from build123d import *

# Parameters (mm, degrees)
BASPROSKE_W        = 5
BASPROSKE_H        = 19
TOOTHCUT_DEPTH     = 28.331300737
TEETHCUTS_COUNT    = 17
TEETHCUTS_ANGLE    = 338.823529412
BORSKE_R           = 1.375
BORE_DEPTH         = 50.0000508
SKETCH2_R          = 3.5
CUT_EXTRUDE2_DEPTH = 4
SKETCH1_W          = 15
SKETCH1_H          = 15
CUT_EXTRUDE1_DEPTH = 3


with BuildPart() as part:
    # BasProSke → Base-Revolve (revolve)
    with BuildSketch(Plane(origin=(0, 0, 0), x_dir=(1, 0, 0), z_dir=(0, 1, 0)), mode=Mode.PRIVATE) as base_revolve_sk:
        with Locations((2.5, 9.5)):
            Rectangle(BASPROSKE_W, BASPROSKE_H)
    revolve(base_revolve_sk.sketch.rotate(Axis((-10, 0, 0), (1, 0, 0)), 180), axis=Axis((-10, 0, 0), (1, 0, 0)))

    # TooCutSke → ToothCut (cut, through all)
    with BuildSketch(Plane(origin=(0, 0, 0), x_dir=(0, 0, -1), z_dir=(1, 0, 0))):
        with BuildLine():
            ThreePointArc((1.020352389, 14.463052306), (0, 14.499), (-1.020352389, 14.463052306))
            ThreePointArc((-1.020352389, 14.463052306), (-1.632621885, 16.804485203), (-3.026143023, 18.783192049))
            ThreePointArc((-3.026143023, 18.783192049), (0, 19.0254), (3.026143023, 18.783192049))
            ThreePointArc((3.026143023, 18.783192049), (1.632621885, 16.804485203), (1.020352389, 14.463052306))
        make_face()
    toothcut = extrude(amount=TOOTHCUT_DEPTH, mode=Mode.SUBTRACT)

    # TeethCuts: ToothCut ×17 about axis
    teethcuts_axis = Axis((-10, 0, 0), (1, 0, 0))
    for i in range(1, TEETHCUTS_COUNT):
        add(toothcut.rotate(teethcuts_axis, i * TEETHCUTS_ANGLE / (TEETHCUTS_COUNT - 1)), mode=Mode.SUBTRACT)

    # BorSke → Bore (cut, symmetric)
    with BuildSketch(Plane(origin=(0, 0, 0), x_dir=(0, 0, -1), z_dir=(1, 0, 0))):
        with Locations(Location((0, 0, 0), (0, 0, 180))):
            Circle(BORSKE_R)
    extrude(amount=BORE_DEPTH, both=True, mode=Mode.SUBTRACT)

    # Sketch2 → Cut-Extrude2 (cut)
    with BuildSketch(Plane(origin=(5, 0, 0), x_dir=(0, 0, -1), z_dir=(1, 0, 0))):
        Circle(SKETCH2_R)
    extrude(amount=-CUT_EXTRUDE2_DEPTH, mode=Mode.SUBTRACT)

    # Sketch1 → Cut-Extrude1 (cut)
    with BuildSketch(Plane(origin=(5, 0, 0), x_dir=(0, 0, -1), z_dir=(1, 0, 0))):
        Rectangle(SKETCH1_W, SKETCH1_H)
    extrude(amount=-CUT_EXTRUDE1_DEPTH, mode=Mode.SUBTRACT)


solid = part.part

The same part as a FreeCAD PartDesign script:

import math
import FreeCAD as App
import Part
import Sketcher
Q = App.Units.Quantity


def add_polygon(sketch, points):
    """Adds a closed chain of lines whose ends are joined by coincident constraints."""
    first, n = sketch.GeometryCount, len(points)
    for a, b in zip(points, points[1:] + points[:1]):
        sketch.addGeometry(Part.LineSegment(App.Vector(*a, 0), App.Vector(*b, 0)), False)
    for i in range(n):
        sketch.addConstraint(Sketcher.Constraint("Coincident", first + i, 2, first + (i + 1) % n, 1))

doc = App.newDocument("Part")
params = doc.addObject("Spreadsheet::Sheet", "Params")
for row, (alias, value) in enumerate([
    ("sketch1_width", "5 mm"),
    ("sketch1_height", "19 mm"),
    ("revolution_angle", "360 deg"),
    ("sketch2_radius", "6.8 mm"),
    ("sketch3_diameter", "2.75 mm"),
    ("pocket2_length", "100.000102 mm"),
    ("sketch4_diameter", "7 mm"),
    ("pocket3_length", "4 mm"),
    ("sketch5_width", "15 mm"),
    ("pocket4_length", "3 mm"),
], start=1):
    params.set(f"A{row}", alias)
    params.set(f"B{row}", "=" + value)
    params.setAlias(f"B{row}", alias)

body = doc.addObject("PartDesign::Body", "Body")

sketch1 = body.newObject("Sketcher::SketchObject", "Sketch")
sketch1.AttachmentSupport = (doc.getObject("XZ_Plane"), [""])
sketch1.MapMode = "FlatFace"
add_polygon(sketch1, [(0, -19), (0, 0), (5, 0), (5, -19)])
sketch1.addConstraint(Sketcher.Constraint("Vertical", 0))
sketch1.addConstraint(Sketcher.Constraint("Horizontal", 1))
sketch1.addConstraint(Sketcher.Constraint("Vertical", 2))
sketch1.addConstraint(Sketcher.Constraint("Horizontal", 3))
sketch1.addConstraint(Sketcher.Constraint("Coincident", 0, 2, -1, 1))
sketch1.addConstraint(Sketcher.Constraint("DistanceX", 1, 1, 1, 2, Q("5 mm")))
sketch1.addConstraint(Sketcher.Constraint("DistanceY", 0, 1, 0, 2, Q("19 mm")))
sketch1.setExpression("Constraints[9]", "Params.sketch1_width")
sketch1.setExpression("Constraints[10]", "Params.sketch1_height")
revolution = body.newObject("PartDesign::Revolution", "Revolution")
revolution.Profile = sketch1
revolution.ReferenceAxis = (sketch1, ["H_Axis"])
revolution.setExpression("Angle", "Params.revolution_angle")

sketch2 = body.newObject("Sketcher::SketchObject", "Sketch001")
sketch2.AttachmentSupport = (doc.getObject("YZ_Plane"), [""])
sketch2.MapMode = "FlatFace"
sketch2.addGeometry(Part.ArcOfCircle(Part.Circle(App.Vector(0, 0, 0), App.Vector(0, 0, 1), 14.499), math.radians(-4.035468), math.radians(4.035468)), False)
sketch2.addGeometry(Part.ArcOfCircle(Part.Circle(App.Vector(13.940915, -7.800277, 0), App.Vector(0, 0, 1), 6.8), math.radians(44.593999), math.radians(85.596214)), False)
sketch2.addGeometry(Part.ArcOfCircle(Part.Circle(App.Vector(0, 0, 0), App.Vector(0, 0, 1), 19.0254), math.radians(-9.152226), math.radians(9.152226)), False)
sketch2.addGeometry(Part.ArcOfCircle(Part.Circle(App.Vector(13.940915, 7.800277, 0), App.Vector(0, 0, 1), 6.8), math.radians(-85.596214), math.radians(-44.593999)), False)
sketch2.addConstraint(Sketcher.Constraint("Coincident", 0, 1, 1, 2))
sketch2.addConstraint(Sketcher.Constraint("Coincident", 1, 1, 2, 1))
sketch2.addConstraint(Sketcher.Constraint("Coincident", 2, 2, 3, 2))
sketch2.addConstraint(Sketcher.Constraint("Coincident", 3, 1, 0, 2))
sketch2.addConstraint(Sketcher.Constraint("Coincident", 0, 3, -1, 1))
sketch2.addConstraint(Sketcher.Constraint("Coincident", 2, 3, -1, 1))
sketch2.addConstraint(Sketcher.Constraint("Equal", 1, 3))
sketch2.addConstraint(Sketcher.Constraint("Symmetric", 1, 3, 3, 3, -1))
sketch2.addConstraint(Sketcher.Constraint("Radius", 1, Q("6.8 mm")))
sketch2.addConstraint(Sketcher.Constraint("Radius", 0, Q("14.499 mm")))
sketch2.addConstraint(Sketcher.Constraint("Radius", 2, Q("19.0254 mm")))
sketch2.addConstraint(Sketcher.Constraint("DistanceY", 0, 1, 3, 3, Q("8.820629 mm")))
sketch2.addConstraint(Sketcher.Constraint("DistanceX", 0, 1, 1, 1, Q("4.32014 mm")))
sketch2.setExpression("Constraints[8]", "Params.sketch2_radius")
pocket1 = body.newObject("PartDesign::Pocket", "Pocket")
pocket1.Profile = sketch2
pocket1.Type = "ThroughAll"
pocket1.Reversed = True
doc.recompute()

polarpattern = body.newObject("PartDesign::PolarPattern", "PolarPattern")
polarpattern.Originals = [pocket1]
polarpattern.Axis = (doc.getObject("X_Axis"), [""])
polarpattern.Angle = 360
polarpattern.Occurrences = 17
body.Tip = polarpattern

sketch3 = body.newObject("Sketcher::SketchObject", "Sketch002")
sketch3.AttachmentSupport = (doc.getObject("YZ_Plane"), [""])
sketch3.MapMode = "FlatFace"
sketch3.addGeometry(Part.Circle(App.Vector(0, 0, 0), App.Vector(0, 0, 1), 1.375), False)
sketch3.addConstraint(Sketcher.Constraint("Coincident", 0, 3, -1, 1))
sketch3.addConstraint(Sketcher.Constraint("Diameter", 0, Q("2.75 mm")))
sketch3.setExpression("Constraints[1]", "Params.sketch3_diameter")
pocket2 = body.newObject("PartDesign::Pocket", "Pocket001")
pocket2.Profile = sketch3
pocket2.setExpression("Length", "Params.pocket2_length")
pocket2.Midplane = True

sketch4 = body.newObject("Sketcher::SketchObject", "Sketch003")
sketch4.AttachmentSupport = (doc.getObject("YZ_Plane"), [""])
sketch4.MapMode = "FlatFace"
sketch4.AttachmentOffset = App.Placement(App.Vector(0, 0, 5), App.Rotation())
sketch4.addGeometry(Part.Circle(App.Vector(0, 0, 0), App.Vector(0, 0, 1), 3.5), False)
sketch4.addConstraint(Sketcher.Constraint("Coincident", 0, 3, -1, 1))
sketch4.addConstraint(Sketcher.Constraint("Diameter", 0, Q("7 mm")))
sketch4.setExpression("Constraints[1]", "Params.sketch4_diameter")
pocket3 = body.newObject("PartDesign::Pocket", "Pocket002")
pocket3.Profile = sketch4
pocket3.setExpression("Length", "Params.pocket3_length")

sketch5 = body.newObject("Sketcher::SketchObject", "Sketch004")
sketch5.AttachmentSupport = (doc.getObject("YZ_Plane"), [""])
sketch5.MapMode = "FlatFace"
sketch5.AttachmentOffset = App.Placement(App.Vector(0, 0, 5), App.Rotation())
add_polygon(sketch5, [(7.5, 7.5), (-7.5, 7.5), (-7.5, -7.5), (7.5, -7.5)])
sketch5.addConstraint(Sketcher.Constraint("Horizontal", 0))
sketch5.addConstraint(Sketcher.Constraint("Vertical", 1))
sketch5.addConstraint(Sketcher.Constraint("Horizontal", 2))
sketch5.addConstraint(Sketcher.Constraint("Vertical", 3))
sketch5.addConstraint(Sketcher.Constraint("Symmetric", 0, 2, 2, 2, -1, 1))
sketch5.addConstraint(Sketcher.Constraint("Equal", 2, 1))
sketch5.addConstraint(Sketcher.Constraint("DistanceX", 0, 2, 0, 1, Q("15 mm")))
sketch5.setExpression("Constraints[10]", "Params.sketch5_width")
pocket4 = body.newObject("PartDesign::Pocket", "Pocket003")
pocket4.Profile = sketch5
pocket4.setExpression("Length", "Params.pocket4_length")

doc.recompute()
